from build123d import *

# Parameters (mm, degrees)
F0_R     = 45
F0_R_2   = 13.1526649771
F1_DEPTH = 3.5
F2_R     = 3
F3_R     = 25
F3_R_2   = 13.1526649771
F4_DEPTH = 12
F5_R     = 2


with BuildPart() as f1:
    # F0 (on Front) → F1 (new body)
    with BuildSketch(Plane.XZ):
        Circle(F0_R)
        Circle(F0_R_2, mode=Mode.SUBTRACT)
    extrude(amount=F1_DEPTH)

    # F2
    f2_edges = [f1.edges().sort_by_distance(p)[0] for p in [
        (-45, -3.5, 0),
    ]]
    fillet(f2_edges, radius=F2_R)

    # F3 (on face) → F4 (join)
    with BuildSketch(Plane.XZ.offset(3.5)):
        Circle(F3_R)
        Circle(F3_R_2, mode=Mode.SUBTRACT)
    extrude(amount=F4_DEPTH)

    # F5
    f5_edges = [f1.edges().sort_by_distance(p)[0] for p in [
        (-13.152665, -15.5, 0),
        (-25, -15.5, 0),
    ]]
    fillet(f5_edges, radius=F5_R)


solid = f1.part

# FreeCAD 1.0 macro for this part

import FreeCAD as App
import Part
import Sketcher
Q = App.Units.Quantity


def edges_at(feature, points):
    """Names of the edges that pass closest to the given points."""
    edges = feature.Shape.Edges
    near = lambda p: min(range(len(edges)), key=lambda i: edges[i].distToShape(Part.Vertex(*p))[0])
    return sorted({f"Edge{near(p) + 1}" for p in points})

doc = App.newDocument("Part")
body = doc.addObject("PartDesign::Body", "Body")

# Sketch on XZ plane
sketch1 = body.newObject("Sketcher::SketchObject", "Sketch")
sketch1.AttachmentSupport = (doc.getObject("XZ_Plane"), [""])
sketch1.MapMode = "FlatFace"
sketch1.addGeometry(Part.Circle(App.Vector(0, 0, 0), App.Vector(0, 0, 1), 45), False)
sketch1.addGeometry(Part.Circle(App.Vector(0, 0, 0), App.Vector(0, 0, 1), 13), False)
sketch1.addConstraint(Sketcher.Constraint("Coincident", 0, 3, -1, 1))
sketch1.addConstraint(Sketcher.Constraint("Coincident", 1, 3, -1, 1))
sketch1.addConstraint(Sketcher.Constraint("Diameter", 0, Q("90 mm")))
sketch1.addConstraint(Sketcher.Constraint("Diameter", 1, Q("26.30533 mm")))
pad1 = body.newObject("PartDesign::Pad", "Pad")
pad1.Profile = sketch1
pad1.Length = 3.5
doc.recompute()

fillet = body.newObject("PartDesign::Fillet", "Fillet")
fillet.Base = (pad1, edges_at(pad1, [(-45, -3.5, 0)]))
fillet.Radius = 3

# Sketch on XZ plane
sketch2 = body.newObject("Sketcher::SketchObject", "Sketch001")
sketch2.AttachmentSupport = (doc.getObject("XZ_Plane"), [""])
sketch2.MapMode = "FlatFace"
sketch2.AttachmentOffset = App.Placement(App.Vector(0, 0, 3.5), App.Rotation())
sketch2.addGeometry(Part.Circle(App.Vector(0, 0, 0), App.Vector(0, 0, 1), 25), False)
sketch2.addGeometry(Part.Circle(App.Vector(0, 0, 0), App.Vector(0, 0, 1), 13), False)
sketch2.addConstraint(Sketcher.Constraint("Coincident", 0, 3, -1, 1))
sketch2.addConstraint(Sketcher.Constraint("Coincident", 1, 3, -1, 1))
sketch2.addConstraint(Sketcher.Constraint("Diameter", 0, Q("50 mm")))
sketch2.addConstraint(Sketcher.Constraint("Diameter", 1, Q("26.30533 mm")))
pad2 = body.newObject("PartDesign::Pad", "Pad001")
pad2.Profile = sketch2
pad2.Length = 12
doc.recompute()

fillet2 = body.newObject("PartDesign::Fillet", "Fillet001")
fillet2.Base = (pad2, edges_at(pad2, [(-13.153, -15.5, 0), (-25, -15.5, 0)]))
fillet2.Radius = 2

doc.recompute()
